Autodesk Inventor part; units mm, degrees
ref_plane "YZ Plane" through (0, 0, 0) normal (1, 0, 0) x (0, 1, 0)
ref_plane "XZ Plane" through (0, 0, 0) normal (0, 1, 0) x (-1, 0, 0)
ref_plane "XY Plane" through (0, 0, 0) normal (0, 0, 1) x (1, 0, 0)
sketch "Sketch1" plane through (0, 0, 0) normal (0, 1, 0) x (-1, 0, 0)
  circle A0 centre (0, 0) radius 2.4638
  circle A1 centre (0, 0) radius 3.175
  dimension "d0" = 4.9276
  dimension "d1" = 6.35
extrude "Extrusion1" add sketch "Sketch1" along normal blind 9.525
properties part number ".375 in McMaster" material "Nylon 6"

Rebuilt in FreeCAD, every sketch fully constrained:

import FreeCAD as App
import Part
import Sketcher
Q = App.Units.Quantity

doc = App.newDocument("Part")
body = doc.addObject("PartDesign::Body", "Body")

# Sketch on XZ plane
sketch1 = doc.addObject("Sketcher::SketchObject", "Sketch")
body.addObject(sketch1)
sketch1.AttachmentSupport = (doc.XZ_Plane, [""])
sketch1.MapMode = "FlatFace"
sketch1.addGeometry([
    Part.Circle(App.Vector(0, 0, 0), App.Vector(0, 0, 1), 3.175),
    Part.Circle(App.Vector(0, 0, 0), App.Vector(0, 0, 1), 2.4638),
], False)
sketch1.addConstraint([
    Sketcher.Constraint("Coincident", 0, 3, -1, 1),
    Sketcher.Constraint("Coincident", 1, 3, -1, 1),
    Sketcher.Constraint("Diameter", 0, Q("0.25 in")),
    Sketcher.Constraint("Diameter", 1, Q("0.194 in")),
])
pad1 = doc.addObject("PartDesign::Pad", "Pad")
body.addObject(pad1)
pad1.Profile = sketch1
pad1.Length = Q("0.375 in")
pad1.Reversed = True

doc.recompute()
